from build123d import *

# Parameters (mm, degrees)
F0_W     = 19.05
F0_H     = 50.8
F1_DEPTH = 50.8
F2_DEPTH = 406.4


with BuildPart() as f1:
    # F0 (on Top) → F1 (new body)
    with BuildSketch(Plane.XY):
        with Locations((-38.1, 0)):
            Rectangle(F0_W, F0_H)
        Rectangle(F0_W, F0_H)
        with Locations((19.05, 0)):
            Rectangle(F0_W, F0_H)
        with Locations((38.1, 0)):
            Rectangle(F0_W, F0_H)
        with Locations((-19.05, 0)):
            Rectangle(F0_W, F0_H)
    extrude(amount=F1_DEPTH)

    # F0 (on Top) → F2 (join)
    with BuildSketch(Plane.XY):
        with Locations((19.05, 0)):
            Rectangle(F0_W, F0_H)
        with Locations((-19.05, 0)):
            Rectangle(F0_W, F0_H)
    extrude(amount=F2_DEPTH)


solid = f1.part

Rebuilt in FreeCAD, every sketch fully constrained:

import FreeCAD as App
import Part
import Sketcher
Q = App.Units.Quantity

doc = App.newDocument("Part")
body = doc.addObject("PartDesign::Body", "Body")

# Sketch on XY plane
sketch1 = doc.addObject("Sketcher::SketchObject", "Sketch")
body.addObject(sketch1)
sketch1.AttachmentSupport = (doc.XY_Plane, [""])
sketch1.MapMode = "FlatFace"
sketch1.addGeometry(Part.LineSegment(App.Vector(-47.625, 25.4, 0), App.Vector(-47.625, -25.4, 0)), False)
sketch1.addGeometry(Part.LineSegment(App.Vector(-47.625, -25.4, 0), App.Vector(47.625, -25.4, 0)), False)
sketch1.addGeometry(Part.LineSegment(App.Vector(47.625, -25.4, 0), App.Vector(47.625, 25.4, 0)), False)
sketch1.addGeometry(Part.LineSegment(App.Vector(47.625, 25.4, 0), App.Vector(-47.625, 25.4, 0)), False)
sketch1.addConstraint(Sketcher.Constraint("Coincident", 0, 2, 1, 1))
sketch1.addConstraint(Sketcher.Constraint("Coincident", 1, 2, 2, 1))
sketch1.addConstraint(Sketcher.Constraint("Coincident", 2, 2, 3, 1))
sketch1.addConstraint(Sketcher.Constraint("Coincident", 3, 2, 0, 1))
sketch1.addConstraint(Sketcher.Constraint("Vertical", 0))
sketch1.addConstraint(Sketcher.Constraint("Horizontal", 1))
sketch1.addConstraint(Sketcher.Constraint("Vertical", 2))
sketch1.addConstraint(Sketcher.Constraint("Horizontal", 3))
sketch1.addConstraint(Sketcher.Constraint("Symmetric", 0, 2, 2, 2, -1, 1))
sketch1.addConstraint(Sketcher.Constraint("DistanceY", 0, 2, 0, 1, Q("2 in")))
sketch1.addConstraint(Sketcher.Constraint("DistanceX", 1, 1, 1, 2, Q("3.75 in")))
pad1 = doc.addObject("PartDesign::Pad", "Pad")
body.addObject(pad1)
pad1.Profile = sketch1
pad1.Length = Q("2 in")

# Sketch on XY plane
sketch2 = doc.addObject("Sketcher::SketchObject", "Sketch001")
body.addObject(sketch2)
sketch2.AttachmentSupport = (doc.XY_Plane, [""])
sketch2.MapMode = "FlatFace"
sketch2.addGeometry(Part.LineSegment(App.Vector(9.525, 25.4, 0), App.Vector(9.525, -25.4, 0)), False)
sketch2.addGeometry(Part.LineSegment(App.Vector(9.525, -25.4, 0), App.Vector(28.575, -25.4, 0)), False)
sketch2.addGeometry(Part.LineSegment(App.Vector(28.575, -25.4, 0), App.Vector(28.575, 25.4, 0)), False)
sketch2.addGeometry(Part.LineSegment(App.Vector(28.575, 25.4, 0), App.Vector(9.525, 25.4, 0)), False)
sketch2.addGeometry(Part.LineSegment(App.Vector(-28.575, 25.4, 0), App.Vector(-28.575, -25.4, 0)), False)
sketch2.addGeometry(Part.LineSegment(App.Vector(-28.575, -25.4, 0), App.Vector(-9.525, -25.4, 0)), False)
sketch2.addGeometry(Part.LineSegment(App.Vector(-9.525, -25.4, 0), App.Vector(-9.525, 25.4, 0)), False)
sketch2.addGeometry(Part.LineSegment(App.Vector(-9.525, 25.4, 0), App.Vector(-28.575, 25.4, 0)), False)
sketch2.addConstraint(Sketcher.Constraint("Coincident", 0, 2, 1, 1))
sketch2.addConstraint(Sketcher.Constraint("Coincident", 1, 2, 2, 1))
sketch2.addConstraint(Sketcher.Constraint("Coincident", 2, 2, 3, 1))
sketch2.addConstraint(Sketcher.Constraint("Coincident", 3, 2, 0, 1))
sketch2.addConstraint(Sketcher.Constraint("Coincident", 4, 2, 5, 1))
sketch2.addConstraint(Sketcher.Constraint("Coincident", 5, 2, 6, 1))
sketch2.addConstraint(Sketcher.Constraint("Coincident", 6, 2, 7, 1))
sketch2.addConstraint(Sketcher.Constraint("Coincident", 7, 2, 4, 1))
sketch2.addConstraint(Sketcher.Constraint("Vertical", 0))
sketch2.addConstraint(Sketcher.Constraint("Horizontal", 1))
sketch2.addConstraint(Sketcher.Constraint("Vertical", 2))
sketch2.addConstraint(Sketcher.Constraint("Horizontal", 3))
sketch2.addConstraint(Sketcher.Constraint("Vertical", 4))
sketch2.addConstraint(Sketcher.Constraint("Horizontal", 5))
sketch2.addConstraint(Sketcher.Constraint("Vertical", 6))
sketch2.addConstraint(Sketcher.Constraint("Horizontal", 7))
sketch2.addConstraint(Sketcher.Constraint("Symmetric", 2, 2, 4, 2, -1, 1))
sketch2.addConstraint(Sketcher.Constraint("Symmetric", 0, 2, 6, 2, -1, 1))
sketch2.addConstraint(Sketcher.Constraint("Horizontal", 1, 2, 4, 2))
sketch2.addConstraint(Sketcher.Constraint("DistanceY", 0, 2, 0, 1, Q("2 in")))
sketch2.addConstraint(Sketcher.Constraint("DistanceX", 1, 1, 1, 2, Q("0.75 in")))
sketch2.addConstraint(Sketcher.Constraint("DistanceX", 4, 2, 0, 2, Q("1.5 in")))
pad2 = doc.addObject("PartDesign::Pad", "Pad001")
body.addObject(pad2)
pad2.Profile = sketch2
pad2.Length = Q("16 in")

doc.recompute()
